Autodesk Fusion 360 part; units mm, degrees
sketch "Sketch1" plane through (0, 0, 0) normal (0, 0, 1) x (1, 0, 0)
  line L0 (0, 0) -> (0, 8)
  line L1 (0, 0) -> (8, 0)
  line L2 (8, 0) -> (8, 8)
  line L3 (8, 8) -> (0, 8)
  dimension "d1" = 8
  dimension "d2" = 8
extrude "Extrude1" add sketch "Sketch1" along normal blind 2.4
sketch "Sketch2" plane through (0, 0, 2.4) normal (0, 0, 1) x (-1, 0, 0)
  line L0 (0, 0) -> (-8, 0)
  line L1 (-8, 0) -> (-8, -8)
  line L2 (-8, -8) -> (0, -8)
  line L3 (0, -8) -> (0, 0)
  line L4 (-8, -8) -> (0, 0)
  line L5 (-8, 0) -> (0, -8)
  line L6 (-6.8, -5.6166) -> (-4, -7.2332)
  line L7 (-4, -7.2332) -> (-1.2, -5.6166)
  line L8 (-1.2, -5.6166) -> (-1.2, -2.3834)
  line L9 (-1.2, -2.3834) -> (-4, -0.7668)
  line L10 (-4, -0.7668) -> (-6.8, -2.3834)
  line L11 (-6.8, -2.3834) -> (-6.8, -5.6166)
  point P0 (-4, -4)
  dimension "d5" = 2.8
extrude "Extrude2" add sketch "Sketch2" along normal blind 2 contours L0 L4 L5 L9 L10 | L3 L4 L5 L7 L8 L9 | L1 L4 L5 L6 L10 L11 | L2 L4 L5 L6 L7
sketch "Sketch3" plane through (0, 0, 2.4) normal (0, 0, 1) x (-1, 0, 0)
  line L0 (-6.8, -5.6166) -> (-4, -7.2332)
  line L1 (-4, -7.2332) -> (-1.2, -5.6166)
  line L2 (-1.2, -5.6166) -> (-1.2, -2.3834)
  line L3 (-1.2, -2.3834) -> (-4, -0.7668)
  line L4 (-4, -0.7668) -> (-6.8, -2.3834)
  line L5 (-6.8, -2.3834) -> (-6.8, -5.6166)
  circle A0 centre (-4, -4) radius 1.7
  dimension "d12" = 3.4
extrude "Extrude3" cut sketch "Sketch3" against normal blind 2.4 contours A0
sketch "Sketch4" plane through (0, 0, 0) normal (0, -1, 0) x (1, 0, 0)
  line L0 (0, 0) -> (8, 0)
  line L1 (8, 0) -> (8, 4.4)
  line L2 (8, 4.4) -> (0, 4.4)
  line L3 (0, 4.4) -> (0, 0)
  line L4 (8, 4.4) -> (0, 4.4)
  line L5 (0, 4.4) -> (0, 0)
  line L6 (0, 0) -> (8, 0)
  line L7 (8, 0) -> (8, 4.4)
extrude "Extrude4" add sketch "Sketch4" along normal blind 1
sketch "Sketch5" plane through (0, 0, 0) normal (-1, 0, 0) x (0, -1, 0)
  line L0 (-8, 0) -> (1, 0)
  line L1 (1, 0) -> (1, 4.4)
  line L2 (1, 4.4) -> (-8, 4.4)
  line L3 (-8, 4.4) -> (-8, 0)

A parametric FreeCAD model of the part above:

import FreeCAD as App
import Part
import Sketcher

V = App.Vector
Q = App.Units.Quantity

doc = App.newDocument("Part")
body = doc.addObject("PartDesign::Body", "Body")

# Sketch on XY plane
sketch1 = doc.addObject("Sketcher::SketchObject", "Sketch")
body.addObject(sketch1)
sketch1.AttachmentSupport = (doc.XY_Plane, [""])
sketch1.MapMode = "FlatFace"
sketch1.addGeometry([
    Part.LineSegment(V(0, 8, 0), V(0, 0, 0)),
    Part.LineSegment(V(0, 0, 0), V(8, 0, 0)),
    Part.LineSegment(V(8, 0, 0), V(8, 8, 0)),
    Part.LineSegment(V(8, 8, 0), V(0, 8, 0)),
], False)
sketch1.addConstraint([
    Sketcher.Constraint("Coincident", 0, 2, 1, 1),
    Sketcher.Constraint("Coincident", 1, 2, 2, 1),
    Sketcher.Constraint("Coincident", 2, 2, 3, 1),
    Sketcher.Constraint("Coincident", 3, 2, 0, 1),
    Sketcher.Constraint("Vertical", 0),
    Sketcher.Constraint("Horizontal", 1),
    Sketcher.Constraint("Vertical", 2),
    Sketcher.Constraint("Horizontal", 3),
    Sketcher.Constraint("Coincident", 0, 2, -1, 1),
    Sketcher.Constraint("Equal", 3, 0),
    Sketcher.Constraint("DistanceX", 1, 1, 1, 2, Q("8 mm")),
])
pad1 = doc.addObject("PartDesign::Pad", "Pad")
body.addObject(pad1)
pad1.Profile = sketch1
pad1.Length = 2.4

# Sketch on XY plane
sketch2 = doc.addObject("Sketcher::SketchObject", "Sketch001")
body.addObject(sketch2)
sketch2.AttachmentSupport = (doc.XY_Plane, [""])
sketch2.MapMode = "FlatFace"
sketch2.AttachmentOffset = App.Placement(V(0, 0, 2.4), App.Rotation())
sketch2.addGeometry([
    Part.LineSegment(V(0, 0, 0), V(8, 0, 0)),  # 0
    Part.LineSegment(V(8, 0, 0), V(8, 8, 0)),  # 1
    Part.LineSegment(V(8, 8, 0), V(0, 8, 0)),  # 2
    Part.LineSegment(V(0, 8, 0), V(0, 0, 0)),  # 3
    Part.LineSegment(V(4, 0.8, 0), V(1.2, 2.4, 0)),  # 4
    Part.LineSegment(V(1.2, 2.4, 0), V(1.2, 5.6, 0)),  # 5
    Part.LineSegment(V(1.2, 5.6, 0), V(4, 7.2, 0)),  # 6
    Part.LineSegment(V(4, 7.2, 0), V(6.8, 5.6, 0)),  # 7
    Part.LineSegment(V(6.8, 5.6, 0), V(6.8, 2.4, 0)),  # 8
    Part.LineSegment(V(6.8, 2.4, 0), V(4, 0.8, 0)),  # 9
], False)
sketch2.addConstraint([
    Sketcher.Constraint("Coincident", 0, 2, 1, 1),
    Sketcher.Constraint("Coincident", 1, 2, 2, 1),
    Sketcher.Constraint("Coincident", 2, 2, 3, 1),
    Sketcher.Constraint("Coincident", 3, 2, 0, 1),
    Sketcher.Constraint("Coincident", 4, 2, 5, 1),
    Sketcher.Constraint("Coincident", 5, 2, 6, 1),
    Sketcher.Constraint("Coincident", 6, 2, 7, 1),
    Sketcher.Constraint("Coincident", 7, 2, 8, 1),
    Sketcher.Constraint("Coincident", 8, 2, 9, 1),
    Sketcher.Constraint("Coincident", 9, 2, 4, 1),
    Sketcher.Constraint("Horizontal", 0),
    Sketcher.Constraint("Vertical", 1),
    Sketcher.Constraint("Horizontal", 2),
    Sketcher.Constraint("Vertical", 3),
    Sketcher.Constraint("Vertical", 5),
    Sketcher.Constraint("Vertical", 8),
    Sketcher.Constraint("Coincident", 3, 2, -1, 1),
    Sketcher.Constraint("Parallel", 4, 7),
    Sketcher.Constraint("Parallel", 6, 9),
    Sketcher.Constraint("Horizontal", 5, 2, 7, 2),
    Sketcher.Constraint("Horizontal", 4, 2, 8, 2),
    Sketcher.Constraint("Vertical", 6, 2, 9, 2),
    Sketcher.Constraint("Equal", 2, 1),
    Sketcher.Constraint("DistanceX", 5, 2, 6, 2, Q("2.8 mm")),
    Sketcher.Constraint("DistanceX", 0, 1, 0, 2, Q("8 mm")),
    Sketcher.Constraint("Angle", 4, Q("149.9997 deg")),
    Sketcher.Constraint("DistanceX", -1, 1, 6, 2, Q("4 mm")),
    Sketcher.Constraint("DistanceY", 5, 1, 5, 2, Q("3.2332 mm")),
    Sketcher.Constraint("DistanceY", -1, 1, 4, 2, Q("2.3834 mm")),
])
pad2 = doc.addObject("PartDesign::Pad", "Pad001")
body.addObject(pad2)
pad2.Profile = sketch2
pad2.Length = 2

# Sketch on XY plane
sketch3 = doc.addObject("Sketcher::SketchObject", "Sketch002")
body.addObject(sketch3)
sketch3.AttachmentSupport = (doc.XY_Plane, [""])
sketch3.MapMode = "FlatFace"
sketch3.AttachmentOffset = App.Placement(V(0, 0, 2.4), App.Rotation())
sketch3.addGeometry(Part.Circle(V(4, 4, 0), V(0, 0, 1), 1.7), False)
sketch3.addConstraint([
    Sketcher.Constraint("Diameter", 0, Q("3.4 mm")),
    Sketcher.Constraint("DistanceX", -1, 1, 0, 3, Q("4 mm")),
    Sketcher.Constraint("DistanceY", -1, 1, 0, 3, Q("4 mm")),
])
pocket1 = doc.addObject("PartDesign::Pocket", "Pocket")
body.addObject(pocket1)
pocket1.Profile = sketch3
pocket1.Length = 2.4

# Sketch on XZ plane
sketch4 = doc.addObject("Sketcher::SketchObject", "Sketch003")
body.addObject(sketch4)
sketch4.AttachmentSupport = (doc.XZ_Plane, [""])
sketch4.MapMode = "FlatFace"
sketch4.addGeometry([
    Part.LineSegment(V(0, 4.4, 0), V(0, 0, 0)),
    Part.LineSegment(V(0, 0, 0), V(8, 0, 0)),
    Part.LineSegment(V(8, 0, 0), V(8, 4.4, 0)),
    Part.LineSegment(V(8, 4.4, 0), V(0, 4.4, 0)),
], False)
sketch4.addConstraint([
    Sketcher.Constraint("Coincident", 0, 2, 1, 1),
    Sketcher.Constraint("Coincident", 1, 2, 2, 1),
    Sketcher.Constraint("Coincident", 2, 2, 3, 1),
    Sketcher.Constraint("Coincident", 3, 2, 0, 1),
    Sketcher.Constraint("Vertical", 0),
    Sketcher.Constraint("Horizontal", 1),
    Sketcher.Constraint("Vertical", 2),
    Sketcher.Constraint("Horizontal", 3),
    Sketcher.Constraint("Coincident", 0, 2, -1, 1),
    Sketcher.Constraint("DistanceX", 1, 1, 1, 2, Q("8 mm")),
    Sketcher.Constraint("DistanceY", 0, 2, 0, 1, Q("4.4 mm")),
])
pad3 = doc.addObject("PartDesign::Pad", "Pad002")
body.addObject(pad3)
pad3.Profile = sketch4
pad3.Length = 1

doc.recompute()
